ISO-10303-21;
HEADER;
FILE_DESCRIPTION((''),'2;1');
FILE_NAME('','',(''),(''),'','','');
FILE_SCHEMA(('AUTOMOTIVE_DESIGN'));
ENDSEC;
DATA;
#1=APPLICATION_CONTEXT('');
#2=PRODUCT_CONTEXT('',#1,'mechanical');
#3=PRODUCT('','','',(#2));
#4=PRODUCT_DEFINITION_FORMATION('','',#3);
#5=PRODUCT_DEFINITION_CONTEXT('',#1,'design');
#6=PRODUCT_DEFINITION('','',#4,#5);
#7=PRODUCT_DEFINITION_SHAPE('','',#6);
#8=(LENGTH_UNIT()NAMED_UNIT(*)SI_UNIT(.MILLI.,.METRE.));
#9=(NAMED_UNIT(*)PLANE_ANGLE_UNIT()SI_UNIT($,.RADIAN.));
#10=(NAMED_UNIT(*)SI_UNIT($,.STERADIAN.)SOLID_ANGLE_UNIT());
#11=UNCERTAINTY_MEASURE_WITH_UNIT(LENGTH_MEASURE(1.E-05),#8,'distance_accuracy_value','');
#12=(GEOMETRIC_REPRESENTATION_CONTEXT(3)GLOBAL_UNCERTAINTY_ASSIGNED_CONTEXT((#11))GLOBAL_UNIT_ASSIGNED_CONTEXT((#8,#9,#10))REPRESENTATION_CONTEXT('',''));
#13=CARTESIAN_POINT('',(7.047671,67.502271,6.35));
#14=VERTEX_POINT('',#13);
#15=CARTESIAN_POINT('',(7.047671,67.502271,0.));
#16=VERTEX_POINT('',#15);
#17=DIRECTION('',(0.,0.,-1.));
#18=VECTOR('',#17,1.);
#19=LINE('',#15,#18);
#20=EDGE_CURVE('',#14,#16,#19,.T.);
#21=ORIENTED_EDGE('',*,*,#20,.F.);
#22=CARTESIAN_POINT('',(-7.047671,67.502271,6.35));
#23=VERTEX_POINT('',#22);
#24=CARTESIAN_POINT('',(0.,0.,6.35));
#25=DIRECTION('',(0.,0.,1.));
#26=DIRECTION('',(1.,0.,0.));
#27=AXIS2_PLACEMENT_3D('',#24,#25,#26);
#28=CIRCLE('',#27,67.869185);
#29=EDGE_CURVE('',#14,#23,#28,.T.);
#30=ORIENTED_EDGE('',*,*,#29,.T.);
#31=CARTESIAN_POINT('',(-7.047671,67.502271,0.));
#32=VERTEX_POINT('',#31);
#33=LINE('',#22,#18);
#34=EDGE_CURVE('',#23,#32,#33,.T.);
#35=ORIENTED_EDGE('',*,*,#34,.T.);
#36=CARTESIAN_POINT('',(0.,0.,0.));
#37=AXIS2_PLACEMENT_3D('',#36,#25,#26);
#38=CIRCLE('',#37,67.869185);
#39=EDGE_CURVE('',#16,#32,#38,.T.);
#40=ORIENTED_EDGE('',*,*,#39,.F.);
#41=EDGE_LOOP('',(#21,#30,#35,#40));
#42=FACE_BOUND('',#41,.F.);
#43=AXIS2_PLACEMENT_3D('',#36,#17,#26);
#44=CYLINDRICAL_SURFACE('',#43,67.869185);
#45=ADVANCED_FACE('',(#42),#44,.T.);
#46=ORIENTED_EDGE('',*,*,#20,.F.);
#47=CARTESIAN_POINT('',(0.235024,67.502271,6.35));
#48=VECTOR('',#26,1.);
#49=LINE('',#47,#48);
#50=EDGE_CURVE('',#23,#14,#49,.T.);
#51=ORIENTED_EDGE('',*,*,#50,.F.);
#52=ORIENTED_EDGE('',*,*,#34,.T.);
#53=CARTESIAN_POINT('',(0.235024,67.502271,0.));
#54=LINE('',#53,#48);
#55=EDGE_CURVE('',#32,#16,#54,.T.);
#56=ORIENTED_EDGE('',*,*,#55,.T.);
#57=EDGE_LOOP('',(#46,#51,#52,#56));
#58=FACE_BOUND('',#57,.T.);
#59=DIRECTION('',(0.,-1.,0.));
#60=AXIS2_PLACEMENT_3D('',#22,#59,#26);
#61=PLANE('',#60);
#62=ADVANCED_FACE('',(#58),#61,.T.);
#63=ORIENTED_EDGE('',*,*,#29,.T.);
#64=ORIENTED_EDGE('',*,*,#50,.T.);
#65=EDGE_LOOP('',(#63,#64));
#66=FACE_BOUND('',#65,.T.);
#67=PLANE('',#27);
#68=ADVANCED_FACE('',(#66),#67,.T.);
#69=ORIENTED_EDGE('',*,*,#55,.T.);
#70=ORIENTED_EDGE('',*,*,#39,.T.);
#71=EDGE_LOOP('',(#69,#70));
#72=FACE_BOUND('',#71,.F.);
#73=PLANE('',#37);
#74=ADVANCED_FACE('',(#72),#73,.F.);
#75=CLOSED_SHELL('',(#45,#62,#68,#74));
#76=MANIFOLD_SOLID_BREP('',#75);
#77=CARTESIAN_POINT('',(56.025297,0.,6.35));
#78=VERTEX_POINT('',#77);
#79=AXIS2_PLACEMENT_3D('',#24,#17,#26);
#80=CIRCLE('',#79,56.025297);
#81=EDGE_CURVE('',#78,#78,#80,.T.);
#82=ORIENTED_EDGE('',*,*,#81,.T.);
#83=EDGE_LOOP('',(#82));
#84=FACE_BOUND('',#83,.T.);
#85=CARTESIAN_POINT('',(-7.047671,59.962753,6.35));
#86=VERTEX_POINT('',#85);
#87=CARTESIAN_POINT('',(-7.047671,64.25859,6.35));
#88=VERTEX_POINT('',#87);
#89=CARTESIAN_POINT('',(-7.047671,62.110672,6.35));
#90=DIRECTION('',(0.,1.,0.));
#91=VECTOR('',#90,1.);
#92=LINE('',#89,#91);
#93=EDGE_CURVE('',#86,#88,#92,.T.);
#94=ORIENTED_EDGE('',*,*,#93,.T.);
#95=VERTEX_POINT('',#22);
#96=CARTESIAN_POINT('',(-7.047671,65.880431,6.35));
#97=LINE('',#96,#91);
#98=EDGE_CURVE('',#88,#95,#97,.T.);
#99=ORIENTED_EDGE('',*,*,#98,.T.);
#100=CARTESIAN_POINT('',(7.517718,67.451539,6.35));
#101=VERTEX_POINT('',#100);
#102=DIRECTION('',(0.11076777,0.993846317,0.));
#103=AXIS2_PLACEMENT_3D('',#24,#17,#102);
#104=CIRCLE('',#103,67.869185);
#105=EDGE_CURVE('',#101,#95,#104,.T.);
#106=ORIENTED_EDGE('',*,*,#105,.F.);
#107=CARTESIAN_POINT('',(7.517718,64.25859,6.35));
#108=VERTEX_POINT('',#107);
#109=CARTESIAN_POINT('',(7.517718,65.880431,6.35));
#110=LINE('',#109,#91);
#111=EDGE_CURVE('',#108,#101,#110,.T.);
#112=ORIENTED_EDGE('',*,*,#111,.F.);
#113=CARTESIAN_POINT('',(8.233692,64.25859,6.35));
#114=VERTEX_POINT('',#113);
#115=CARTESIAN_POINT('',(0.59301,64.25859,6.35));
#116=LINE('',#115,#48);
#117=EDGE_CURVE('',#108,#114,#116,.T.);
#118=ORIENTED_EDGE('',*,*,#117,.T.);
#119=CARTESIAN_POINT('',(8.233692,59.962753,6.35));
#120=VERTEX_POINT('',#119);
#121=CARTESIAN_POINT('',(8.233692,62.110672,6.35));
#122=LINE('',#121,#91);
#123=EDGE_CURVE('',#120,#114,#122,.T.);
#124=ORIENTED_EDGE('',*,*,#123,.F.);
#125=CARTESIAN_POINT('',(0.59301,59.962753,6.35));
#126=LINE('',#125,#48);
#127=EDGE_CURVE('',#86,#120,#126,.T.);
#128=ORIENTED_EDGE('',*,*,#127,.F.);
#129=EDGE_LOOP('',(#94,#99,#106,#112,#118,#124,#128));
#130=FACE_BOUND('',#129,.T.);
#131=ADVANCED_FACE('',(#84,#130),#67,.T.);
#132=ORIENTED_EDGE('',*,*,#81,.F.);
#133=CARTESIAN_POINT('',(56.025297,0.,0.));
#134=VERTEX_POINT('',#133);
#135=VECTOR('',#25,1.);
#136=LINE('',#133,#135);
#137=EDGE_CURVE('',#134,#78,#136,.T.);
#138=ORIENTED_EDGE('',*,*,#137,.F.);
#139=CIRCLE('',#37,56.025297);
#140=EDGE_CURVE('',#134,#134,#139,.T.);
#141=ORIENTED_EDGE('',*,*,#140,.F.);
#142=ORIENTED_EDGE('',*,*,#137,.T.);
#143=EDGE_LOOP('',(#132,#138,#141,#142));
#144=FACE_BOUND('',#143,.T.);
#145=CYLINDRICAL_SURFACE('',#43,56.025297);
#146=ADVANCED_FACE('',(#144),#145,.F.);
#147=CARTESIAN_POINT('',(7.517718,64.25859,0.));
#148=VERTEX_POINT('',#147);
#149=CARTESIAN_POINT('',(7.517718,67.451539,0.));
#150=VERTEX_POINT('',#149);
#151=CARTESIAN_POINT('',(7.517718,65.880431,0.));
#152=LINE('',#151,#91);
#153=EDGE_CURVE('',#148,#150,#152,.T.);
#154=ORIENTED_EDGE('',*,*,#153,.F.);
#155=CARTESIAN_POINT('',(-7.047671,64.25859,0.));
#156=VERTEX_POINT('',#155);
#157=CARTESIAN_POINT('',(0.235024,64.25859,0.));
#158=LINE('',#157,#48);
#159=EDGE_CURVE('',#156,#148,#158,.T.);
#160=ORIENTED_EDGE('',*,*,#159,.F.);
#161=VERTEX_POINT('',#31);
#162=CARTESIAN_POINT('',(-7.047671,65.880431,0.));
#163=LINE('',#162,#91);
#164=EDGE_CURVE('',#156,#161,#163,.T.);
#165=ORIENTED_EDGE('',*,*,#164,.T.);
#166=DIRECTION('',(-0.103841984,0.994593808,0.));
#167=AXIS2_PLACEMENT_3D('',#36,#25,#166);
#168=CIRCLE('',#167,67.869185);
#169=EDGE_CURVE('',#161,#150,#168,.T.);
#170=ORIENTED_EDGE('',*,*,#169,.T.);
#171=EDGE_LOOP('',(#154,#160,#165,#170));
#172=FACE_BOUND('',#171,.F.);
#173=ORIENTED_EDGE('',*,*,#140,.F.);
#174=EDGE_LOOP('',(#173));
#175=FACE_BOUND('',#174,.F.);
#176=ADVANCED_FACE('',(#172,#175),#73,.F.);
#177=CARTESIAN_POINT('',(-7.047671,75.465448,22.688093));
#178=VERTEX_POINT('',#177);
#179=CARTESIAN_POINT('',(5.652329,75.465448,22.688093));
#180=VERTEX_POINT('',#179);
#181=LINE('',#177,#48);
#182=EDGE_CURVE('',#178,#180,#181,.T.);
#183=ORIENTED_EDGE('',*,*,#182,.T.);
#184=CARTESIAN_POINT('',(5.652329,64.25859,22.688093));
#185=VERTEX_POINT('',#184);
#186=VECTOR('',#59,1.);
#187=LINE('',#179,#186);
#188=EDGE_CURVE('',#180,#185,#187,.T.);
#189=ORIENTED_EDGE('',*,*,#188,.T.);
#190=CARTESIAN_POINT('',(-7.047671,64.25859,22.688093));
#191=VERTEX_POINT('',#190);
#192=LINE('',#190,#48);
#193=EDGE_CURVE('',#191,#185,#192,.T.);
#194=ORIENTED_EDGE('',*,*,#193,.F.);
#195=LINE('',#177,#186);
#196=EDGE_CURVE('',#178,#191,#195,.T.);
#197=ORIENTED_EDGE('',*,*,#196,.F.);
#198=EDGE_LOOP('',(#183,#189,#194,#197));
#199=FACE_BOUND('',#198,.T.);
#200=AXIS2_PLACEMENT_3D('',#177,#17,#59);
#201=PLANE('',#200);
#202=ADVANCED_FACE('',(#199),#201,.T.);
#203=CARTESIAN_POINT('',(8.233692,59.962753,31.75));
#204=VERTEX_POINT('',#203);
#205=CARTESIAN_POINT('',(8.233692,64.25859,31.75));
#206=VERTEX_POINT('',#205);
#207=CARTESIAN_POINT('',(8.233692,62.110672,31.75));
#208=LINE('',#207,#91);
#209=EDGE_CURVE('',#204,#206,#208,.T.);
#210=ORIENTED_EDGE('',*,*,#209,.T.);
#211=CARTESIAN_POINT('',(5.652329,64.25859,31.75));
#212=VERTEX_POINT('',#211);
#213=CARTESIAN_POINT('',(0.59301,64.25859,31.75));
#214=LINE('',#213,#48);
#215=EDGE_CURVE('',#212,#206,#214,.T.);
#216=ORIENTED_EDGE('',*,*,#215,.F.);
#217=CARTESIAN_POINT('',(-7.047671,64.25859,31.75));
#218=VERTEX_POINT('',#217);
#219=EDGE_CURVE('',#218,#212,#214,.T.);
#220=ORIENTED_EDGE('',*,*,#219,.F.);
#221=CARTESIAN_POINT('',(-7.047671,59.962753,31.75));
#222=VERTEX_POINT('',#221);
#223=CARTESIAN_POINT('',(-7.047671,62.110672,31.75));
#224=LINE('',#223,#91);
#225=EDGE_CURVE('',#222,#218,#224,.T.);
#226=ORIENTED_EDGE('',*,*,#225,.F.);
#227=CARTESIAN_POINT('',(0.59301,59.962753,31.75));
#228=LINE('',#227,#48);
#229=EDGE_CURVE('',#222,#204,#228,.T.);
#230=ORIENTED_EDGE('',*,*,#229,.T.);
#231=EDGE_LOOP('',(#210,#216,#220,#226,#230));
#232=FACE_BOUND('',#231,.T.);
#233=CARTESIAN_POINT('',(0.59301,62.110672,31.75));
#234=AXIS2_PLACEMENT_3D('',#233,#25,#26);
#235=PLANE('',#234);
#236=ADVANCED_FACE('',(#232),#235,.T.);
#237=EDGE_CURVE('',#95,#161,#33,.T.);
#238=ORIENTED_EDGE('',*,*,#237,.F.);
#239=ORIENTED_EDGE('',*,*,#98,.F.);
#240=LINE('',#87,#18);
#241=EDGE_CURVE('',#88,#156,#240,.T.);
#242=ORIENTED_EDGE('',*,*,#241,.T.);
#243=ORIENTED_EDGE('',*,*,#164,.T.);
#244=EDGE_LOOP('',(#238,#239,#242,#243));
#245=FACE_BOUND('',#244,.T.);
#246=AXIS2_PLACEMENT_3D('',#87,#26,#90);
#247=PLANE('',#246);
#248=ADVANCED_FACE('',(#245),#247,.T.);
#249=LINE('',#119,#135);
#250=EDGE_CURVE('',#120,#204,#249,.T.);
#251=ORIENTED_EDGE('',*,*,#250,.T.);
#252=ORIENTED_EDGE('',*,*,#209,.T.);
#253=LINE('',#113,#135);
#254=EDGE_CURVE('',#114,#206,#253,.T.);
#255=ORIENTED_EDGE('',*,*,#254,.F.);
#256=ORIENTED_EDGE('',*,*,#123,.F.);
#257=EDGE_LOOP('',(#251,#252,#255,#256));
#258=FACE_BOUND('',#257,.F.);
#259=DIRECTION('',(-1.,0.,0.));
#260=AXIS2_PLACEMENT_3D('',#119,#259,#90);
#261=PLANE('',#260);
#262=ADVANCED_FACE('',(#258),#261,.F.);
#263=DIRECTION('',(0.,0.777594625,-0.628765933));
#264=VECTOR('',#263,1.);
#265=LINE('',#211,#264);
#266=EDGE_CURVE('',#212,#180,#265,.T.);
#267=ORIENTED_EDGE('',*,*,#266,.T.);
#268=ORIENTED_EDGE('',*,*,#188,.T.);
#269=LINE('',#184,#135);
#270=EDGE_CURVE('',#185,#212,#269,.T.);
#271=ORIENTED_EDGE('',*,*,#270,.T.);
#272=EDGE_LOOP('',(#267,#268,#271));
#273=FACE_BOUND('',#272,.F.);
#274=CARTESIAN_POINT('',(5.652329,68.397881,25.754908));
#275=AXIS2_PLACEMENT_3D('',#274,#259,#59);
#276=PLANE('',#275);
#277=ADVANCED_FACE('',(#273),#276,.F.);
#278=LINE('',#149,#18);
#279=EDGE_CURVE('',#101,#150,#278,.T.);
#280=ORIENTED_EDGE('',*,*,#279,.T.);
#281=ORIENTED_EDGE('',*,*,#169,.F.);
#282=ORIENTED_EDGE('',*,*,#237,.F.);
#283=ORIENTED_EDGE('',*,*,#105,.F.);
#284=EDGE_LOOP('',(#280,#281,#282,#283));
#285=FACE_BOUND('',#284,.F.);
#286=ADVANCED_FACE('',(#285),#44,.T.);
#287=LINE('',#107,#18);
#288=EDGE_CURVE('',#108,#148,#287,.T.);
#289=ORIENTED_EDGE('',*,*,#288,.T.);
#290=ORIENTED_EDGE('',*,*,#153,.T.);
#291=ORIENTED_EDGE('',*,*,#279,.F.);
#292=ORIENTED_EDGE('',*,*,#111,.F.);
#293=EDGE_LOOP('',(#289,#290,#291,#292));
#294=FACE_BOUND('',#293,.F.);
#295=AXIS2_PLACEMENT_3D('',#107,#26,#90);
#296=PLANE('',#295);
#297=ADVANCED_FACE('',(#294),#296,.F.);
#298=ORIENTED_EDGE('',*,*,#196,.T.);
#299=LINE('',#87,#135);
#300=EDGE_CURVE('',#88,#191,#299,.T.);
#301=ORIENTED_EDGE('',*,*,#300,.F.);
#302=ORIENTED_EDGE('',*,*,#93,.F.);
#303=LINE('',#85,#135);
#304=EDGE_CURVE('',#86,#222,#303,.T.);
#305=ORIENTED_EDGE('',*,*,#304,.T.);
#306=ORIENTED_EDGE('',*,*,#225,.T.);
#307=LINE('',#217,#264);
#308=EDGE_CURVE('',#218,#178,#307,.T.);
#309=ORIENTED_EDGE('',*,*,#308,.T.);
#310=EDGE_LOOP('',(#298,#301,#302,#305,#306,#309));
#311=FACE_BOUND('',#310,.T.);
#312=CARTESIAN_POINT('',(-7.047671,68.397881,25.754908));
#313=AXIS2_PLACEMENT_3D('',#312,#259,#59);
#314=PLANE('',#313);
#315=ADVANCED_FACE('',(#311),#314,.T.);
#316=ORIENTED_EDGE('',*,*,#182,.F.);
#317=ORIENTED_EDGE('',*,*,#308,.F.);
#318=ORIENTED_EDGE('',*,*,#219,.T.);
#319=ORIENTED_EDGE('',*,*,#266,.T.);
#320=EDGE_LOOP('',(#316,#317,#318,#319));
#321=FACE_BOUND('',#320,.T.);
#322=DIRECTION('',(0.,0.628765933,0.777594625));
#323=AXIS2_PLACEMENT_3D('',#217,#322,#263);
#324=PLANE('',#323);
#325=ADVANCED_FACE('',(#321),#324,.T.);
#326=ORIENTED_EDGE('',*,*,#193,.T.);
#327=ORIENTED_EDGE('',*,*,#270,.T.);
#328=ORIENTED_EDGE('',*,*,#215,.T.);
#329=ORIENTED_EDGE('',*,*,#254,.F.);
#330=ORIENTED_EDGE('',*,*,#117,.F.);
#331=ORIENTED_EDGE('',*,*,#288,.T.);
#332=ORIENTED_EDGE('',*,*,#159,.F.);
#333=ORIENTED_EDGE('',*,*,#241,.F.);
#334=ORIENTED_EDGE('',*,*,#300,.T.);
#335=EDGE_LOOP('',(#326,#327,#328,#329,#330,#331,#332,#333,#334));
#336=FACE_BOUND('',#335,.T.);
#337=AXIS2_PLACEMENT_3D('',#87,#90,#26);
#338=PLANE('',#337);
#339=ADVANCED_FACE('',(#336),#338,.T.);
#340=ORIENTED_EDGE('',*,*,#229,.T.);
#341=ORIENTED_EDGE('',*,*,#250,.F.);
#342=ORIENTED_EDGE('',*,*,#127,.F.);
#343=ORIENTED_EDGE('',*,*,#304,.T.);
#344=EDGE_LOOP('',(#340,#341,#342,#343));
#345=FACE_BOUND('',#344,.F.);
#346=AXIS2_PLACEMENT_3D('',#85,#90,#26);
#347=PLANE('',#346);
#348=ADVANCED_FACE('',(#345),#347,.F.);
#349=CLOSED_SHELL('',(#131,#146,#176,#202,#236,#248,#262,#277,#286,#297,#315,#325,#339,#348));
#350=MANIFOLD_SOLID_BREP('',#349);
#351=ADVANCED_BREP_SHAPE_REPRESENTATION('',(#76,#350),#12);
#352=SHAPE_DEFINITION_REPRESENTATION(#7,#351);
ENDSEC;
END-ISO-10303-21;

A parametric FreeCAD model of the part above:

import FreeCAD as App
import Part
import Sketcher
from FreeCAD import Vector
Q = App.Units.Quantity


def add_polygon(sketch, points):
    """Adds a closed chain of lines whose ends are joined by coincident constraints."""
    first, n = sketch.GeometryCount, len(points)
    for a, b in zip(points, points[1:] + points[:1]):
        sketch.addGeometry(Part.LineSegment(App.Vector(*a, 0), App.Vector(*b, 0)), False)
    for i in range(n):
        sketch.addConstraint(Sketcher.Constraint("Coincident", first + i, 2, first + (i + 1) % n, 1))

doc = App.newDocument("Part")
params = doc.addObject("Spreadsheet::Sheet", "Params")
for row, (alias, value) in enumerate([
    ("pad1_length", "0.25 in"),
    ("pocket1_length", "0.75 in"),
    ("pocket2_length", "0.25 in"),
    ("pad2_length", "1 in"),
    ("pad3_length", "0.5 in"),
], start=1):
    params.set(f"A{row}", alias)
    params.set(f"B{row}", "=" + value)
    params.setAlias(f"B{row}", alias)

body = doc.addObject("PartDesign::Body", "Body")
body.AllowCompound = True

sketch1 = doc.addObject("Sketcher::SketchObject", "Sketch")
body.addObject(sketch1)
sketch1.AttachmentSupport = (doc.XY_Plane, [""])
sketch1.MapMode = "FlatFace"
sketch1.addGeometry(Part.Circle(Vector(0, 0, 0), Vector(0, 0, 1), 68), False)
sketch1.addConstraint([
    Sketcher.Constraint("Coincident", 0, 3, -1, 1),
    Sketcher.Constraint("Diameter", 0, 135.738369),
])
pad1 = doc.addObject("PartDesign::Pad", "Pad")
body.addObject(pad1)
pad1.Profile = sketch1
pad1.setExpression("Length", "Params.pad1_length")

sketch2 = doc.addObject("Sketcher::SketchObject", "Sketch001")
body.addObject(sketch2)
sketch2.AttachmentSupport = (doc.XY_Plane, [""])
sketch2.MapMode = "FlatFace"
sketch2.addGeometry(Part.Circle(Vector(0, 0, 0), Vector(0, 0, 1), 56), False)
sketch2.addConstraint([
    Sketcher.Constraint("Coincident", 0, 3, -1, 1),
    Sketcher.Constraint("Diameter", 0, 112.050594),
])
pocket1 = doc.addObject("PartDesign::Pocket", "Pocket")
body.addObject(pocket1)
pocket1.Profile = sketch2
pocket1.setExpression("Length", "Params.pocket1_length")
pocket1.Reversed = True

sketch3 = doc.addObject("Sketcher::SketchObject", "Sketch002")
body.addObject(sketch3)
sketch3.AttachmentSupport = (doc.XY_Plane, [""])
sketch3.MapMode = "FlatFace"
sketch3.AttachmentOffset = App.Placement(Vector(0, 0, 0.25 * 25.4), App.Rotation())
add_polygon(sketch3, [(-7, 67.5), (-7, 64.3), (7.5, 64.3), (7.5, 67.5)])
sketch3.addConstraint([
    Sketcher.Constraint("Vertical", 0),
    Sketcher.Constraint("Horizontal", 1),
    Sketcher.Constraint("Vertical", 2),
    Sketcher.Constraint("Horizontal", 3),
    Sketcher.Constraint("DistanceX", 1, 1, 1, 2, 14.565389),
    Sketcher.Constraint("DistanceY", 0, 2, 0, 1, 3.24368),
    Sketcher.Constraint("DistanceX", 0, 2, -1, 1, 7.047671),
    Sketcher.Constraint("DistanceY", -1, 1, 0, 2, 64.25859),
])
pocket2 = doc.addObject("PartDesign::Pocket", "Pocket001")
body.addObject(pocket2)
pocket2.Profile = sketch3
pocket2.setExpression("Length", "Params.pocket2_length")

sketch4 = doc.addObject("Sketcher::SketchObject", "Sketch003")
body.addObject(sketch4)
sketch4.AttachmentSupport = (doc.XY_Plane, [""])
sketch4.MapMode = "FlatFace"
sketch4.AttachmentOffset = App.Placement(Vector(0, 0, 0.25 * 25.4), App.Rotation())
add_polygon(sketch4, [(-7, 64.3), (-7, 60), (8.2, 60), (8.2, 64.3)])
sketch4.addConstraint([
    Sketcher.Constraint("Vertical", 0),
    Sketcher.Constraint("Horizontal", 1),
    Sketcher.Constraint("Vertical", 2),
    Sketcher.Constraint("Horizontal", 3),
    Sketcher.Constraint("DistanceX", 1, 1, 1, 2, 15.281362),
    Sketcher.Constraint("DistanceY", 0, 2, 0, 1, 4.295837),
    Sketcher.Constraint("DistanceX", 0, 2, -1, 1, 7.047671),
    Sketcher.Constraint("DistanceY", -1, 1, 2, 2, 64.25859),
])
pad2 = doc.addObject("PartDesign::Pad", "Pad001")
body.addObject(pad2)
pad2.Profile = sketch4
pad2.setExpression("Length", "Params.pad2_length")

sketch5 = doc.addObject("Sketcher::SketchObject", "Sketch004")
body.addObject(sketch5)
sketch5.AttachmentSupport = (doc.YZ_Plane, [""])
sketch5.MapMode = "FlatFace"
sketch5.AttachmentOffset = App.Placement(Vector(0, 0, -7.047671), App.Rotation())
add_polygon(sketch5, [(75, 23), (64, 23), (64, 32)])
sketch5.addConstraint([
    Sketcher.Constraint("Horizontal", 0),
    Sketcher.Constraint("Vertical", 1),
    Sketcher.Constraint("DistanceY", -1, 1, 1, 2, Q("1.25 in")),
    Sketcher.Constraint("Distance", 2, 14.412211),
    Sketcher.Constraint("DistanceX", 0, 2, 0, 1, 11.206858),
    Sketcher.Constraint("DistanceX", -1, 1, 0, 2, 64.25859),
])
pad3 = doc.addObject("PartDesign::Pad", "Pad002")
body.addObject(pad3)
pad3.Profile = sketch5
pad3.setExpression("Length", "Params.pad3_length")

doc.recompute()
